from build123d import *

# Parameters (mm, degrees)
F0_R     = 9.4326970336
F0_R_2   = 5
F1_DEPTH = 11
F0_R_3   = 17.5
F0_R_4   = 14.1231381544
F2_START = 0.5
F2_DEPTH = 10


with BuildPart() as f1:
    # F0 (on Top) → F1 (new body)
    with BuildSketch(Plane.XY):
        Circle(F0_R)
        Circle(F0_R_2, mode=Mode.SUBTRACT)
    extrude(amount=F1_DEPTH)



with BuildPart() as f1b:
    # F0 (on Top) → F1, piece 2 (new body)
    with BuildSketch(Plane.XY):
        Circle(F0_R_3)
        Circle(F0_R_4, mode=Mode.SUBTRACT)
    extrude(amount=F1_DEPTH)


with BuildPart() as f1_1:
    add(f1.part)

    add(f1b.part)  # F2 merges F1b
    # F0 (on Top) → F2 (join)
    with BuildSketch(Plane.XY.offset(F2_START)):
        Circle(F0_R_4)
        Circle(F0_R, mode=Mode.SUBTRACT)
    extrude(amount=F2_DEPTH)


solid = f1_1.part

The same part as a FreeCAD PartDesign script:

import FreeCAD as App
import Part
import Sketcher
from FreeCAD import Vector
Q = App.Units.Quantity

doc = App.newDocument("Part")
body = doc.addObject("PartDesign::Body", "Body")

sketch1 = body.newObject("Sketcher::SketchObject", "Sketch")
sketch1.AttachmentSupport = (doc.getObject("XY_Plane"), [""])
sketch1.MapMode = "FlatFace"
sketch1.addGeometry([
    Part.Circle(Vector(0, 0, 0), Vector(0, 0, 1), 9.432697),
    Part.Circle(Vector(0, 0, 0), Vector(0, 0, 1), 5),
], False)
sketch1.addConstraint([
    Sketcher.Constraint("Coincident", 0, 3, -1, 1),
    Sketcher.Constraint("Coincident", 1, 3, -1, 1),
    Sketcher.Constraint("Diameter", 1, Q("10 mm")),
    Sketcher.Constraint("Diameter", 0, Q("18.865394 mm")),
])
pad1 = body.newObject("PartDesign::Pad", "Pad")
pad1.Profile = sketch1
pad1.Length = 11
body2 = doc.addObject("PartDesign::Body", "Body001")

sketch2 = body2.newObject("Sketcher::SketchObject", "Sketch001")
sketch2.AttachmentSupport = (doc.getObject("XY_Plane001"), [""])
sketch2.MapMode = "FlatFace"
sketch2.addGeometry([
    Part.Circle(Vector(0, 0, 0), Vector(0, 0, 1), 17.5),
    Part.Circle(Vector(0, 0, 0), Vector(0, 0, 1), 14.123138),
], False)
sketch2.addConstraint([
    Sketcher.Constraint("Coincident", 0, 3, -1, 1),
    Sketcher.Constraint("Coincident", 1, 3, -1, 1),
    Sketcher.Constraint("Diameter", 0, Q("35 mm")),
    Sketcher.Constraint("Diameter", 1, Q("28.246276 mm")),
])
pad2 = body2.newObject("PartDesign::Pad", "Pad001")
pad2.Profile = sketch2
pad2.Length = 11
body.AllowCompound = True
doc.recompute()

boolean = body.newObject("PartDesign::Boolean", "Boolean")
boolean.Type = "Fuse"
boolean.addObjects([body2])

sketch3 = body.newObject("Sketcher::SketchObject", "Sketch002")
sketch3.AttachmentSupport = (doc.getObject("XY_Plane"), [""])
sketch3.MapMode = "FlatFace"
sketch3.AttachmentOffset = App.Placement(Vector(0, 0, 0.5), App.Rotation())
sketch3.addGeometry([
    Part.Circle(Vector(0, 0, 0), Vector(0, 0, 1), 14.123138),
    Part.Circle(Vector(0, 0, 0), Vector(0, 0, 1), 9.432697),
], False)
sketch3.addConstraint([
    Sketcher.Constraint("Coincident", 0, 3, -1, 1),
    Sketcher.Constraint("Coincident", 1, 3, -1, 1),
    Sketcher.Constraint("Diameter", 0, Q("28.246276 mm")),
    Sketcher.Constraint("Diameter", 1, Q("18.865394 mm")),
])
pad3 = body.newObject("PartDesign::Pad", "Pad002")
pad3.Profile = sketch3
pad3.Length = 10

doc.recompute()
